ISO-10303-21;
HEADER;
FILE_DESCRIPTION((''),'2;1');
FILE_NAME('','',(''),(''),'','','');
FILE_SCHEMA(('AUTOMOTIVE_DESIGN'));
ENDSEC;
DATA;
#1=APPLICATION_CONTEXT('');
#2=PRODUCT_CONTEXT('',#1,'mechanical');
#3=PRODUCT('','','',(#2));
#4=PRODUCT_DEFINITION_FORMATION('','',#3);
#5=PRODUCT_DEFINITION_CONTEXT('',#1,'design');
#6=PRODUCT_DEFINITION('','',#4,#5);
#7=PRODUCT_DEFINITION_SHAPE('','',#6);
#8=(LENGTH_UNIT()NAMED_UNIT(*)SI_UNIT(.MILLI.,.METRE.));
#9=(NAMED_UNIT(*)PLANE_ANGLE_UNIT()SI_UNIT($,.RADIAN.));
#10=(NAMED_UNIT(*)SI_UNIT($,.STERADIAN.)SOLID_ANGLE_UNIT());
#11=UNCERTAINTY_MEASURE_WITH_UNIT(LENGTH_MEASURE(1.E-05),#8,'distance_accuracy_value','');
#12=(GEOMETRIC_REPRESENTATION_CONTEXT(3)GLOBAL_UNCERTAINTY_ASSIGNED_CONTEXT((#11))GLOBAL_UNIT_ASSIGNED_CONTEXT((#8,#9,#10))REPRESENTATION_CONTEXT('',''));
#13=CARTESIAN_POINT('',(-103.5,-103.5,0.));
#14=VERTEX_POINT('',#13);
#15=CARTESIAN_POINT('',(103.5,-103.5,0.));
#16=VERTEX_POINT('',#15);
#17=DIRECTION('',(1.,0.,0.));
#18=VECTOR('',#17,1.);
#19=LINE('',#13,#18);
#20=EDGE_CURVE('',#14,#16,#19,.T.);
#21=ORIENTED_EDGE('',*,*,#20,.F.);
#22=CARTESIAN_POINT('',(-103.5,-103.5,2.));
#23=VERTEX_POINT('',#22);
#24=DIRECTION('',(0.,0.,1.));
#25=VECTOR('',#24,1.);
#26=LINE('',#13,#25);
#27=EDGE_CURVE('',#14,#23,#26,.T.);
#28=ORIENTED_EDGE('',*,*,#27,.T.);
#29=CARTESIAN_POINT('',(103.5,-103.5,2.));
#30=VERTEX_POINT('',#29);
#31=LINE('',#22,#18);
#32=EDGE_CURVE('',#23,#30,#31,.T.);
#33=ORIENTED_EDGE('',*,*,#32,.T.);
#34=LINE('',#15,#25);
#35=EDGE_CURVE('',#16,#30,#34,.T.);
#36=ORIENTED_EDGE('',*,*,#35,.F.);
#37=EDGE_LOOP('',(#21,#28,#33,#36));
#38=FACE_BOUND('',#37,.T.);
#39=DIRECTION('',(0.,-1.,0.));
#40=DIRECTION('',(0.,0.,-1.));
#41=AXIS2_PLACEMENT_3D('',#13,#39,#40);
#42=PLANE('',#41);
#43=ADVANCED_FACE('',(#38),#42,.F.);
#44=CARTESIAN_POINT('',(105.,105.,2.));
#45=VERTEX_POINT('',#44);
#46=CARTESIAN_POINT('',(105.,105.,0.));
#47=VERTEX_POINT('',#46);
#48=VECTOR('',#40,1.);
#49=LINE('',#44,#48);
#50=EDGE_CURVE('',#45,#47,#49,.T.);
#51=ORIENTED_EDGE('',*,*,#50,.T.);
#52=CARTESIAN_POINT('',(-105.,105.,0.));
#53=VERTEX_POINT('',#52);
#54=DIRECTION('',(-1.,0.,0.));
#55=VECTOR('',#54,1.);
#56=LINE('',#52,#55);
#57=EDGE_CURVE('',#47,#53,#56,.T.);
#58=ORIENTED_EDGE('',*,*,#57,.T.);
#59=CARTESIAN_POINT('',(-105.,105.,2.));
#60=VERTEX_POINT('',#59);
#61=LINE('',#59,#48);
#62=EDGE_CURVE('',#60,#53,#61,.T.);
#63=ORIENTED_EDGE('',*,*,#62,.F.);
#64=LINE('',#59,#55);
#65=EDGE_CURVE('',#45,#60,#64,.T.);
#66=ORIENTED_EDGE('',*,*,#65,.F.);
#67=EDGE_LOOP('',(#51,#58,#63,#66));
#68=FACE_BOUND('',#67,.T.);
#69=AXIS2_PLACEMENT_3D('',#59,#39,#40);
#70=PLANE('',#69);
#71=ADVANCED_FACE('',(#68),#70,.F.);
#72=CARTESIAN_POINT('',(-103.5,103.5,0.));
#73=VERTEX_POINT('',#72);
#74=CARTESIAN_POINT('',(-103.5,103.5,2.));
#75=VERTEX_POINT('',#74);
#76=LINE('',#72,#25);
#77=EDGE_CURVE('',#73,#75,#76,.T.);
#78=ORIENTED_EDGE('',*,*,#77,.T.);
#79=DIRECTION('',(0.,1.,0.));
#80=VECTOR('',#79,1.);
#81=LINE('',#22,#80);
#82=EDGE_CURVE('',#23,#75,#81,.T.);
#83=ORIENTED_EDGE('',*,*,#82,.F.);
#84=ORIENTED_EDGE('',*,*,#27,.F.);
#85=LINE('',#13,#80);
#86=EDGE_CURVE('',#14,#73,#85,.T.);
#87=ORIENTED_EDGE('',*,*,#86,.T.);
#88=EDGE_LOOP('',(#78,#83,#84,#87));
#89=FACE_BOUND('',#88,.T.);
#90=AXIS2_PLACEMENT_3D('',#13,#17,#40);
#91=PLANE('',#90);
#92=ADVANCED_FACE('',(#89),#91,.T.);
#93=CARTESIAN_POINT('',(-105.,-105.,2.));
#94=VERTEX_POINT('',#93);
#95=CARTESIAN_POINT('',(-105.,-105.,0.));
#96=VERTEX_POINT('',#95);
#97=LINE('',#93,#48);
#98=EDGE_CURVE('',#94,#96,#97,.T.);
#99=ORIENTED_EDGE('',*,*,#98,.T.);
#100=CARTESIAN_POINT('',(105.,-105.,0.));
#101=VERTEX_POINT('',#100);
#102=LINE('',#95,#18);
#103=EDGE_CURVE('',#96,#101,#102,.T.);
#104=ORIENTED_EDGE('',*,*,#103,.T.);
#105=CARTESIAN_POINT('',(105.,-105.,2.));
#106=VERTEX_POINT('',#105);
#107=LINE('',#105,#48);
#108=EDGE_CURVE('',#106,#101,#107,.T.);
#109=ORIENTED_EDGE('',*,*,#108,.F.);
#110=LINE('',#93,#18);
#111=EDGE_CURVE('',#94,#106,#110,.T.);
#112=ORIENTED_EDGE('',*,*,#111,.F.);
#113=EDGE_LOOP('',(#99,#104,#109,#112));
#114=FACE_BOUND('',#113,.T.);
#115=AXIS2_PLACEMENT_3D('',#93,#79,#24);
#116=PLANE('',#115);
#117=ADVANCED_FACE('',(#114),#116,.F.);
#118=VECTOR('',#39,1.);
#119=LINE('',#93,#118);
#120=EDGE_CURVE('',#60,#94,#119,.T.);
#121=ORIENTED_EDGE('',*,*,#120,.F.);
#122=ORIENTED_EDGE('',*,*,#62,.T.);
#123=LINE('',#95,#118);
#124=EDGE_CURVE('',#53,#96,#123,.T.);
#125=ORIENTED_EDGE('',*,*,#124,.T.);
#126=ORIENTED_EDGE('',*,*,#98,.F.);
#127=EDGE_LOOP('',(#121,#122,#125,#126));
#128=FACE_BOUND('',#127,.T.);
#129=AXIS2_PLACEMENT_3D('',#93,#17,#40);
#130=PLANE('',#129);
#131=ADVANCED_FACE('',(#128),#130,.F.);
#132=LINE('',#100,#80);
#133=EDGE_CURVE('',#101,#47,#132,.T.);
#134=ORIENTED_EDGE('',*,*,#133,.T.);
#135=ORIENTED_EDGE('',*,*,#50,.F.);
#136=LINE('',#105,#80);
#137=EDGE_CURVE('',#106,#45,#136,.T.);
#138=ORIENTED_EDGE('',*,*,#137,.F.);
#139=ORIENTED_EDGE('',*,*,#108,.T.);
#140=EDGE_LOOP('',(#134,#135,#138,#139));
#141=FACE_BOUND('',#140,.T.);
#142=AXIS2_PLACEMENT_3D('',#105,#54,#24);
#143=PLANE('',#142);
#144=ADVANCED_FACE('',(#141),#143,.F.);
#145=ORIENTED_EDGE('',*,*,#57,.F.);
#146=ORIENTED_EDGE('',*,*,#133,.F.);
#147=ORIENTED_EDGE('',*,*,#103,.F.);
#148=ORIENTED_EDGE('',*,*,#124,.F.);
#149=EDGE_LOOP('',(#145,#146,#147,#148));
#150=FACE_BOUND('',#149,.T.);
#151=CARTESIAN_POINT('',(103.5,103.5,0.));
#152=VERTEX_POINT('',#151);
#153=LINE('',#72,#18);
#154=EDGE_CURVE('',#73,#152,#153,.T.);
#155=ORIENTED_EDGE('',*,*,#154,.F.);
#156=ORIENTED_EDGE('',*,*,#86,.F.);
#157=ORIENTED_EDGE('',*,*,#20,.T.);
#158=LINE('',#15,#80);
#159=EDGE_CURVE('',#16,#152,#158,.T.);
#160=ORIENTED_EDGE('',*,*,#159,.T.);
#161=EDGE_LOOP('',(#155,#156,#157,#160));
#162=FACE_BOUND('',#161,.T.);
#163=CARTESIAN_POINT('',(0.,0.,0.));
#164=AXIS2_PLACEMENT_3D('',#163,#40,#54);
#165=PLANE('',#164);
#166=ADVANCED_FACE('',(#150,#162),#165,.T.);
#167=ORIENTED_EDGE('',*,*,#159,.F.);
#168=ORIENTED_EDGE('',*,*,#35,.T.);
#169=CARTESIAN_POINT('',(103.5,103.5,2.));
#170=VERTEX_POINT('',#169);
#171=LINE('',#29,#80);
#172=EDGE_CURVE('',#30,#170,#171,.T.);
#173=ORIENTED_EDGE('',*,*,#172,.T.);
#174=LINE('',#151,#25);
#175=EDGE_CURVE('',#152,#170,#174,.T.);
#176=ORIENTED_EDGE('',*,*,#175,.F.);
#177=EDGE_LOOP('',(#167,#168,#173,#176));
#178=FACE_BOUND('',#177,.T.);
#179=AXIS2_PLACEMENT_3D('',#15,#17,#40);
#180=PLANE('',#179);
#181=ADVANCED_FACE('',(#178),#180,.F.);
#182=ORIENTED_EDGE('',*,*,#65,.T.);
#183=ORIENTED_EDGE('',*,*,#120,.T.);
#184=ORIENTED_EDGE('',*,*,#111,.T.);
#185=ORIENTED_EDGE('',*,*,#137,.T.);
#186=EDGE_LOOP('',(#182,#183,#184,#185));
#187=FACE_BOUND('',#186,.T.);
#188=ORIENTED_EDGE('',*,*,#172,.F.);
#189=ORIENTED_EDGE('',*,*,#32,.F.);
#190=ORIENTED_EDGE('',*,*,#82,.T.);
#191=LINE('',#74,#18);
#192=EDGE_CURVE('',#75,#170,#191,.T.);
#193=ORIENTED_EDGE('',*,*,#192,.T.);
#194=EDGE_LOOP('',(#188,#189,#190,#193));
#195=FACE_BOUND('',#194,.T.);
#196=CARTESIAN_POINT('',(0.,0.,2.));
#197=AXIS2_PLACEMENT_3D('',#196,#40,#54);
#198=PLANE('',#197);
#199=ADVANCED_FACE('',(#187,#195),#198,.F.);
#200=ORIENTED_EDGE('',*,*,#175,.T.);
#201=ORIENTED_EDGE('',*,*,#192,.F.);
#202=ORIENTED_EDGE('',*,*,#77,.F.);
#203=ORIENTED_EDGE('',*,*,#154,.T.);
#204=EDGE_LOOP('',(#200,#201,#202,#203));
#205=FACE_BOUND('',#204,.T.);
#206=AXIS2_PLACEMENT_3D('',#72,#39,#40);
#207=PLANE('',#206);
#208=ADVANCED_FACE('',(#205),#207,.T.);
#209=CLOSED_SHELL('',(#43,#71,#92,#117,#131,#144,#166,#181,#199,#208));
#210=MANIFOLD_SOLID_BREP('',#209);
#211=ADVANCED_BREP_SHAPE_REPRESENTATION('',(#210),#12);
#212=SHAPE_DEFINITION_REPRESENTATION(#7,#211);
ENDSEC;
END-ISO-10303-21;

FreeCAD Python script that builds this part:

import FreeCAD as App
import Part
import Sketcher

V = App.Vector


def add_polygon(sketch, points):
    """Adds a closed chain of lines whose ends are joined by coincident constraints."""
    first, n = sketch.GeometryCount, len(points)
    for a, b in zip(points, points[1:] + points[:1]):
        sketch.addGeometry(Part.LineSegment(App.Vector(*a, 0), App.Vector(*b, 0)), False)
    for i in range(n):
        sketch.addConstraint(Sketcher.Constraint("Coincident", first + i, 2, first + (i + 1) % n, 1))

doc = App.newDocument("Part")
body = doc.addObject("PartDesign::Body", "Body")

# Sketch on XY plane
sketch1 = body.newObject("Sketcher::SketchObject", "Sketch")
sketch1.AttachmentSupport = (doc.getObject("XY_Plane"), [""])
sketch1.MapMode = "FlatFace"
add_polygon(sketch1, [(-105, 105), (-105, -105), (105, -105), (105, 105)])  # lines 0-3
sketch1.addConstraint(Sketcher.Constraint("Vertical", 0))
sketch1.addConstraint(Sketcher.Constraint("Horizontal", 1))
sketch1.addConstraint(Sketcher.Constraint("Vertical", 2))
sketch1.addConstraint(Sketcher.Constraint("Horizontal", 3))
sketch1.addConstraint(Sketcher.Constraint("Symmetric", 0, 2, 2, 2, -1, 1))
sketch1.addConstraint(Sketcher.Constraint("Equal", 3, 0))
sketch1.addConstraint(Sketcher.Constraint("DistanceX", 1, 1, 1, 2, 210.0))
pad1 = body.newObject("PartDesign::Pad", "Pad")
pad1.Profile = sketch1
pad1.Length = 2

# Sketch on XY plane
sketch2 = body.newObject("Sketcher::SketchObject", "Sketch001")
sketch2.AttachmentSupport = (doc.getObject("XY_Plane"), [""])
sketch2.MapMode = "FlatFace"
sketch2.AttachmentOffset = App.Placement(V(0, 0, 2), App.Rotation())
add_polygon(sketch2, [(-103.5, 103.5), (-103.5, -103.5), (103.5, -103.5), (103.5, 103.5)])  # lines 0-3
sketch2.addConstraint(Sketcher.Constraint("Vertical", 0))
sketch2.addConstraint(Sketcher.Constraint("Horizontal", 1))
sketch2.addConstraint(Sketcher.Constraint("Vertical", 2))
sketch2.addConstraint(Sketcher.Constraint("Horizontal", 3))
sketch2.addConstraint(Sketcher.Constraint("Symmetric", 0, 2, 2, 2, -1, 1))
sketch2.addConstraint(Sketcher.Constraint("Equal", 3, 0))
sketch2.addConstraint(Sketcher.Constraint("DistanceX", 1, 1, 1, 2, 207.0))
pocket1 = body.newObject("PartDesign::Pocket", "Pocket")
pocket1.Profile = sketch2
pocket1.Type = "ThroughAll"

doc.recompute()
